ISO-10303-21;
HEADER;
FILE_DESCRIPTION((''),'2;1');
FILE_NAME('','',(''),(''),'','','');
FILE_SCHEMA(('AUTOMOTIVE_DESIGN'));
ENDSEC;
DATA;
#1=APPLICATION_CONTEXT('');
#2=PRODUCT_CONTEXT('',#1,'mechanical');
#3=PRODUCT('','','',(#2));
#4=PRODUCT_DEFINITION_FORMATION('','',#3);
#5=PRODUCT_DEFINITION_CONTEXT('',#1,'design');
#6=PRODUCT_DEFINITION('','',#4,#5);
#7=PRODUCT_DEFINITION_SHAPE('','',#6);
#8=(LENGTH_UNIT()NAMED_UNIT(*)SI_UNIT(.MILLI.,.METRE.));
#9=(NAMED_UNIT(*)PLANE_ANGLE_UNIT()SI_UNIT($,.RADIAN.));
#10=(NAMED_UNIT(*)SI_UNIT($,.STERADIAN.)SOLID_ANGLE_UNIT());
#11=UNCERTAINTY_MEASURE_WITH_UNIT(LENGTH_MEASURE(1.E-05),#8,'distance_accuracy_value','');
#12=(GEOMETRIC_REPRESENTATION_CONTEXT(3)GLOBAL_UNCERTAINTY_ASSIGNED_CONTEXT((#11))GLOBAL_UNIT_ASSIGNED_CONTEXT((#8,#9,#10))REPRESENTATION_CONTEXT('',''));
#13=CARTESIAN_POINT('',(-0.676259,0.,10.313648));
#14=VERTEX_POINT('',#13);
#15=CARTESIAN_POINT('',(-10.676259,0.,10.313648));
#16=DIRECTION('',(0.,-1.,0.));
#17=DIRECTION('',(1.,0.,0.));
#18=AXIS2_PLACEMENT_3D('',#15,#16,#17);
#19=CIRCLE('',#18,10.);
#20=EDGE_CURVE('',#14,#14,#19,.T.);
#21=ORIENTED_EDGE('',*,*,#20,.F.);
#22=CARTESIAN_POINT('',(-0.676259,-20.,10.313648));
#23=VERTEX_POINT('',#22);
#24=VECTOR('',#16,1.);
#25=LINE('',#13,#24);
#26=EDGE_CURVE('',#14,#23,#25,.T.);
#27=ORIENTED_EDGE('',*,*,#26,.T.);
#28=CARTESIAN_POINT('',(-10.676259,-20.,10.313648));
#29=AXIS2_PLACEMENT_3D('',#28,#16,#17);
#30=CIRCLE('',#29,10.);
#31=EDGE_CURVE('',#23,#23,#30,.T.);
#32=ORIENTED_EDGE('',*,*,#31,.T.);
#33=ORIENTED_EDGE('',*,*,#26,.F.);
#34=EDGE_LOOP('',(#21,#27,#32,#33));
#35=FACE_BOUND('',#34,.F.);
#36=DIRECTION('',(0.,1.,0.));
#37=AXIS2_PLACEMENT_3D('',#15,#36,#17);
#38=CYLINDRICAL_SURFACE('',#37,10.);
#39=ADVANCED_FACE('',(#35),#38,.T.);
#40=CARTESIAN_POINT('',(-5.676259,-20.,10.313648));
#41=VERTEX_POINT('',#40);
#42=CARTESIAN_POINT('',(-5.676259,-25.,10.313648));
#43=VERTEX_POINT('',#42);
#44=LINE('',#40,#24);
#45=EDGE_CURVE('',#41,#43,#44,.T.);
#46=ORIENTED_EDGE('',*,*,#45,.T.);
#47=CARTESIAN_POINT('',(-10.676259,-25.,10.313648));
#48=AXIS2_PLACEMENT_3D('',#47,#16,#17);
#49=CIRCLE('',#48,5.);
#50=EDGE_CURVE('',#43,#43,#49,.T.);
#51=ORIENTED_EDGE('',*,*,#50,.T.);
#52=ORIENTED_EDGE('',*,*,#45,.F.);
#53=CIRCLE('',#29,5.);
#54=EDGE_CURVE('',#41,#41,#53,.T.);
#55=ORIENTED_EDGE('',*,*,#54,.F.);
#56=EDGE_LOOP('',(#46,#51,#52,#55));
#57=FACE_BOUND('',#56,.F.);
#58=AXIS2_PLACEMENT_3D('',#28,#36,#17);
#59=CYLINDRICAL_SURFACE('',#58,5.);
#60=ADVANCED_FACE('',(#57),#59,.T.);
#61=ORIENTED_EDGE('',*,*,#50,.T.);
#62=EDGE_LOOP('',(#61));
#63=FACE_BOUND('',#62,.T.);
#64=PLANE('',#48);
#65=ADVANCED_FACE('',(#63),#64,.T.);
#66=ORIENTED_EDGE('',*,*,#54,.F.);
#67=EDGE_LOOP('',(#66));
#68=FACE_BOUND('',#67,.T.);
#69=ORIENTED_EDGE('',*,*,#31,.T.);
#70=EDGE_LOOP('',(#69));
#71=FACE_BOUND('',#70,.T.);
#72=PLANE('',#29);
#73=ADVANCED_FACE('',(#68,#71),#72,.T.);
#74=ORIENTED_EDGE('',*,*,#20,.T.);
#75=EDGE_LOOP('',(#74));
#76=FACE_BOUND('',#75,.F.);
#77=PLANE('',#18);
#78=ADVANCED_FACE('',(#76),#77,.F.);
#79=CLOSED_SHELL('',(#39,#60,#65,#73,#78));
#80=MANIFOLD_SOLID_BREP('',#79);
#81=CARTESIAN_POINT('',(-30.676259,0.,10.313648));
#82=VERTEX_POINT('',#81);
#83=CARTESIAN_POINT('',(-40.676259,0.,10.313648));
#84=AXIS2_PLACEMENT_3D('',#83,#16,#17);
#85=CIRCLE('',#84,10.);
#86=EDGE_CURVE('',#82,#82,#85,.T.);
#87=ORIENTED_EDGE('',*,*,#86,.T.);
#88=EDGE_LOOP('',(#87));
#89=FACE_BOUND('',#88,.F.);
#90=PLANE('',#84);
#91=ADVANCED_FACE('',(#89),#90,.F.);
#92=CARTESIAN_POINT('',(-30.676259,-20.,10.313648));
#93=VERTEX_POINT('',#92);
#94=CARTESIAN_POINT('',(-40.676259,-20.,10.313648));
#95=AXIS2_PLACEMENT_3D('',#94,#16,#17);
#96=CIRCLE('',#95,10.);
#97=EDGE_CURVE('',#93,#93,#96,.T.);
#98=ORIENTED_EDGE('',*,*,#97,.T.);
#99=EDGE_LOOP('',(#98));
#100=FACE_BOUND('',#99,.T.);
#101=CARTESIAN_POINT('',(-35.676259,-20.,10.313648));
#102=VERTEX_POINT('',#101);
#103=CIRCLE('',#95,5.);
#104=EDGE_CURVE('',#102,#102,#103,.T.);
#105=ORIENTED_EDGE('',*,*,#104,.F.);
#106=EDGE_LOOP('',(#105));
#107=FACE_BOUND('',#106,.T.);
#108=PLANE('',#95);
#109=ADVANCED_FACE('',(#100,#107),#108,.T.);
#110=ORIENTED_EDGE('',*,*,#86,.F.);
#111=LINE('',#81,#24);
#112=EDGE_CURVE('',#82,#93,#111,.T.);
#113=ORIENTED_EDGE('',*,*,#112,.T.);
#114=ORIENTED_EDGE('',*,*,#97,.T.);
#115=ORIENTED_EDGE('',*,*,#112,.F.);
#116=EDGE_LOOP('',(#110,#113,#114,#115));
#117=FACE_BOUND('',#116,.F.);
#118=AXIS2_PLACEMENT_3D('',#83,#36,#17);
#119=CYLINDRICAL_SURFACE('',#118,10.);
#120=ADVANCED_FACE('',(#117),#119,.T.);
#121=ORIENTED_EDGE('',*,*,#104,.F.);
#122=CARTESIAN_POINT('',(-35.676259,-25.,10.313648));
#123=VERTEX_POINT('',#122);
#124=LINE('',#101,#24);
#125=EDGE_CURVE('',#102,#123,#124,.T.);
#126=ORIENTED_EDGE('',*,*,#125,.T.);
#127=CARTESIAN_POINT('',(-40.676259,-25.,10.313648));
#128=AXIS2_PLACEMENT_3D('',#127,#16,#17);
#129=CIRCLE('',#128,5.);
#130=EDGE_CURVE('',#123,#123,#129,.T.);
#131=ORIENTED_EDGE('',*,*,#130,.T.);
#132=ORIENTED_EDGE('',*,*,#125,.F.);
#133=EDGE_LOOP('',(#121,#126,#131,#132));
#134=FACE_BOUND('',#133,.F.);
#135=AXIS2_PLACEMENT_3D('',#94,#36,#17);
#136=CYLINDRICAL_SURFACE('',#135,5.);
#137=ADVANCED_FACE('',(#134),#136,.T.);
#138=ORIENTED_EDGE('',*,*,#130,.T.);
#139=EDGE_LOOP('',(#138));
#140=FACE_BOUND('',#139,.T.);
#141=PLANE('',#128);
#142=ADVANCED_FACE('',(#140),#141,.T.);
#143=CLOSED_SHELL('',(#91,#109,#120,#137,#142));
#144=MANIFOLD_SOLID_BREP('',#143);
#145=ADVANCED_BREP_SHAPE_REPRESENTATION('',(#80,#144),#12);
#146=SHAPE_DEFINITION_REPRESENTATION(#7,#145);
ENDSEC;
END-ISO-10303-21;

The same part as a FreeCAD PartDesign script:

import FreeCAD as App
import Part
import Sketcher

V = App.Vector
Q = App.Units.Quantity

doc = App.newDocument("Part")
body = doc.addObject("PartDesign::Body", "Body")
body.AllowCompound = True

sketch1 = doc.addObject("Sketcher::SketchObject", "Sketch")
body.addObject(sketch1)
sketch1.AttachmentSupport = (doc.XZ_Plane, [""])
sketch1.MapMode = "FlatFace"
sketch1.addGeometry(Part.Circle(V(-41, 10, 0), V(0, 0, 1), 10), False)
sketch1.addGeometry(Part.Circle(V(-11, 10, 0), V(0, 0, 1), 10), False)
sketch1.addConstraint(Sketcher.Constraint("Equal", 0, 1))
sketch1.addConstraint(Sketcher.Constraint("Horizontal", 0, 3, 1, 3))
sketch1.addConstraint(Sketcher.Constraint("Diameter", 0, Q("20 mm")))
sketch1.addConstraint(Sketcher.Constraint("DistanceX", 0, 3, 1, 3, Q("30 mm")))
sketch1.addConstraint(Sketcher.Constraint("DistanceX", 0, 3, -1, 1, Q("40.676259 mm")))
sketch1.addConstraint(Sketcher.Constraint("DistanceY", -1, 1, 0, 3, Q("10.313648 mm")))
pad1 = doc.addObject("PartDesign::Pad", "Pad")
body.addObject(pad1)
pad1.Profile = sketch1
pad1.Length = 20

sketch2 = doc.addObject("Sketcher::SketchObject", "Sketch001")
body.addObject(sketch2)
sketch2.AttachmentSupport = (doc.XZ_Plane, [""])
sketch2.MapMode = "FlatFace"
sketch2.AttachmentOffset = App.Placement(V(0, 0, 20), App.Rotation())
sketch2.addGeometry(Part.Circle(V(-41, 10, 0), V(0, 0, 1), 5), False)
sketch2.addConstraint(Sketcher.Constraint("Diameter", 0, Q("10 mm")))
sketch2.addConstraint(Sketcher.Constraint("DistanceX", 0, 3, -1, 1, Q("40.676259 mm")))
sketch2.addConstraint(Sketcher.Constraint("DistanceY", -1, 1, 0, 3, Q("10.313648 mm")))
pad2 = doc.addObject("PartDesign::Pad", "Pad001")
body.addObject(pad2)
pad2.Profile = sketch2
pad2.Length = 5

sketch3 = doc.addObject("Sketcher::SketchObject", "Sketch002")
body.addObject(sketch3)
sketch3.AttachmentSupport = (doc.XZ_Plane, [""])
sketch3.MapMode = "FlatFace"
sketch3.AttachmentOffset = App.Placement(V(0, 0, 20), App.Rotation())
sketch3.addGeometry(Part.Circle(V(-11, 10, 0), V(0, 0, 1), 5), False)
sketch3.addConstraint(Sketcher.Constraint("Diameter", 0, Q("10 mm")))
sketch3.addConstraint(Sketcher.Constraint("DistanceX", 0, 3, -1, 1, Q("10.676259 mm")))
sketch3.addConstraint(Sketcher.Constraint("DistanceY", -1, 1, 0, 3, Q("10.313648 mm")))
pad3 = doc.addObject("PartDesign::Pad", "Pad002")
body.addObject(pad3)
pad3.Profile = sketch3
pad3.Length = 5

doc.recompute()
